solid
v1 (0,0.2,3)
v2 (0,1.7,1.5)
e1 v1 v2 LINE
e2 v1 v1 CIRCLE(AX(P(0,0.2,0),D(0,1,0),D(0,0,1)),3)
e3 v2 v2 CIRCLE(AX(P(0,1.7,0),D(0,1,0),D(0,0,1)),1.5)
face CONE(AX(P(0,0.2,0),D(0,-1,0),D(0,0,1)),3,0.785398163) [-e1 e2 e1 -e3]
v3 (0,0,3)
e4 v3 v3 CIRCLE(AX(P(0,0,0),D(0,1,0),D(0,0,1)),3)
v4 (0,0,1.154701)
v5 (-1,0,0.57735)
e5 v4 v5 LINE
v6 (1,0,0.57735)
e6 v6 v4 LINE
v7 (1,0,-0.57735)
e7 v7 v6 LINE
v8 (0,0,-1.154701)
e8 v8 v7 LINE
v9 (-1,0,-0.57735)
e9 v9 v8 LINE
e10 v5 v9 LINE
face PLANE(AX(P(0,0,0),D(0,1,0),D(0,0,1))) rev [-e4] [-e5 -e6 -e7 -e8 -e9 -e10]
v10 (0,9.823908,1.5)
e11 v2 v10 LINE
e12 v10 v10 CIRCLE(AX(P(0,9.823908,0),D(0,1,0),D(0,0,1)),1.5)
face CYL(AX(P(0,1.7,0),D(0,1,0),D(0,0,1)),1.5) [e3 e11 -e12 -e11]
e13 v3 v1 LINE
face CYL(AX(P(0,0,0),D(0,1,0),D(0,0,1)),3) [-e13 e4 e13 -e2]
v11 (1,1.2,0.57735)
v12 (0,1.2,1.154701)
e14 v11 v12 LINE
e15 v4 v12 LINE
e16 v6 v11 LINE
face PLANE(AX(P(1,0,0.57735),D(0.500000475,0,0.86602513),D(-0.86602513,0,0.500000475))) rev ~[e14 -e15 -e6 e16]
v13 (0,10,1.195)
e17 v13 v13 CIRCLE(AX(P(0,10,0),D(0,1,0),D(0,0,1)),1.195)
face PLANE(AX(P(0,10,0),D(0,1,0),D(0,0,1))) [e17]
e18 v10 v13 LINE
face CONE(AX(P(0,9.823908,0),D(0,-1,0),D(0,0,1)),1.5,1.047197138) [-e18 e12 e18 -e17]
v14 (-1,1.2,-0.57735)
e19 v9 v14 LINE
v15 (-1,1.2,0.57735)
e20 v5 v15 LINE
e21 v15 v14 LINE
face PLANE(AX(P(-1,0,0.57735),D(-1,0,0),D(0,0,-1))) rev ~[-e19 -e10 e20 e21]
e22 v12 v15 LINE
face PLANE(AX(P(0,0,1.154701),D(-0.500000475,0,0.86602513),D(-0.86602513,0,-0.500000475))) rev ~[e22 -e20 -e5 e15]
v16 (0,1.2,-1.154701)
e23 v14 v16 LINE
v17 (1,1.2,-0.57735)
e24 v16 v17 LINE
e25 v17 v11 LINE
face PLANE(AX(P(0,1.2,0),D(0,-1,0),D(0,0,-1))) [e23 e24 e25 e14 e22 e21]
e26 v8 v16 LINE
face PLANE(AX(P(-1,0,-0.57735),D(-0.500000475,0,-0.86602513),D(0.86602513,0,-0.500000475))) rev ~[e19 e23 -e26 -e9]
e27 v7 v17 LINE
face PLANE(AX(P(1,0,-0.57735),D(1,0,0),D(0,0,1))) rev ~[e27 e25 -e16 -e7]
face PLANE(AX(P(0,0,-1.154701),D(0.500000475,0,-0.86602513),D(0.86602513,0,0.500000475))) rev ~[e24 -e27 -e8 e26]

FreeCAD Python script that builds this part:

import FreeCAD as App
import Part
import Sketcher
from FreeCAD import Vector
Q = App.Units.Quantity


def add_polygon(sketch, points):
    """Adds a closed chain of lines whose ends are joined by coincident constraints."""
    first, n = sketch.GeometryCount, len(points)
    for a, b in zip(points, points[1:] + points[:1]):
        sketch.addGeometry(Part.LineSegment(App.Vector(*a, 0), App.Vector(*b, 0)), False)
    for i in range(n):
        sketch.addConstraint(Sketcher.Constraint("Coincident", first + i, 2, first + (i + 1) % n, 1))

doc = App.newDocument("Part")
body = doc.addObject("PartDesign::Body", "Body")

sketch1 = body.newObject("Sketcher::SketchObject", "Sketch")
sketch1.AttachmentSupport = (doc.getObject("YZ_Plane"), [""])
sketch1.MapMode = "FlatFace"
add_polygon(sketch1, [(0, 3), (0, 0), (10, 0), (10, 1.2), (9.82, 1.5), (1.7, 1.5), (0.2, 3)])
sketch1.addConstraint(Sketcher.Constraint("Vertical", 0))
sketch1.addConstraint(Sketcher.Constraint("Horizontal", 1))
sketch1.addConstraint(Sketcher.Constraint("Vertical", 2))
sketch1.addConstraint(Sketcher.Constraint("Horizontal", 4))
sketch1.addConstraint(Sketcher.Constraint("Horizontal", 6))
sketch1.addConstraint(Sketcher.Constraint("Coincident", 0, 2, -1, 1))
sketch1.addConstraint(Sketcher.Constraint("DistanceX", 1, 1, 1, 2, Q("10 mm")))
sketch1.addConstraint(Sketcher.Constraint("DistanceY", 0, 2, 0, 1, Q("3 mm")))
sketch1.addConstraint(Sketcher.Constraint("Angle", 5, Q("135 deg")))
sketch1.addConstraint(Sketcher.Constraint("DistanceX", 6, 2, 6, 1, Q("0.2 mm")))
sketch1.addConstraint(Sketcher.Constraint("DistanceY", -1, 1, 3, 2, Q("1.5 mm")))
sketch1.addConstraint(Sketcher.Constraint("DistanceY", 2, 1, 2, 2, Q("1.195 mm")))
sketch1.addConstraint(Sketcher.Constraint("DistanceX", 4, 2, 4, 1, Q("8.123908 mm")))
revolution = body.newObject("PartDesign::Revolution", "Revolution")
revolution.Profile = sketch1
revolution.ReferenceAxis = (sketch1, ["H_Axis"])
revolution.Angle = 360

sketch2 = body.newObject("Sketcher::SketchObject", "Sketch001")
sketch2.AttachmentSupport = (doc.getObject("XZ_Plane"), [""])
sketch2.MapMode = "FlatFace"
add_polygon(sketch2, [(1, -0.6), (1, 0.6), (0, 1.2), (-1, 0.6), (-1, -0.6), (0, -1.2)])
sketch2.addConstraint(Sketcher.Constraint("Vertical", 0))
sketch2.addConstraint(Sketcher.Constraint("Vertical", 3))
sketch2.addConstraint(Sketcher.Constraint("Symmetric", 0, 2, 3, 2, -1, 1))
sketch2.addConstraint(Sketcher.Constraint("Symmetric", 1, 2, 4, 2, -1, 1))
sketch2.addConstraint(Sketcher.Constraint("PointOnObject", 1, 2, -2))
sketch2.addConstraint(Sketcher.Constraint("Parallel", 2, 5))
sketch2.addConstraint(Sketcher.Constraint("Horizontal", 0, 2, 2, 2))
sketch2.addConstraint(Sketcher.Constraint("DistanceX", -1, 1, 0, 2, Q("1 mm")))
sketch2.addConstraint(Sketcher.Constraint("DistanceY", 0, 1, 0, 2, Q("1.1547 mm")))
sketch2.addConstraint(Sketcher.Constraint("Distance", 1, Q("1.154701 mm")))
pocket1 = body.newObject("PartDesign::Pocket", "Pocket")
pocket1.Profile = sketch2
pocket1.Length = 1.2

doc.recompute()
